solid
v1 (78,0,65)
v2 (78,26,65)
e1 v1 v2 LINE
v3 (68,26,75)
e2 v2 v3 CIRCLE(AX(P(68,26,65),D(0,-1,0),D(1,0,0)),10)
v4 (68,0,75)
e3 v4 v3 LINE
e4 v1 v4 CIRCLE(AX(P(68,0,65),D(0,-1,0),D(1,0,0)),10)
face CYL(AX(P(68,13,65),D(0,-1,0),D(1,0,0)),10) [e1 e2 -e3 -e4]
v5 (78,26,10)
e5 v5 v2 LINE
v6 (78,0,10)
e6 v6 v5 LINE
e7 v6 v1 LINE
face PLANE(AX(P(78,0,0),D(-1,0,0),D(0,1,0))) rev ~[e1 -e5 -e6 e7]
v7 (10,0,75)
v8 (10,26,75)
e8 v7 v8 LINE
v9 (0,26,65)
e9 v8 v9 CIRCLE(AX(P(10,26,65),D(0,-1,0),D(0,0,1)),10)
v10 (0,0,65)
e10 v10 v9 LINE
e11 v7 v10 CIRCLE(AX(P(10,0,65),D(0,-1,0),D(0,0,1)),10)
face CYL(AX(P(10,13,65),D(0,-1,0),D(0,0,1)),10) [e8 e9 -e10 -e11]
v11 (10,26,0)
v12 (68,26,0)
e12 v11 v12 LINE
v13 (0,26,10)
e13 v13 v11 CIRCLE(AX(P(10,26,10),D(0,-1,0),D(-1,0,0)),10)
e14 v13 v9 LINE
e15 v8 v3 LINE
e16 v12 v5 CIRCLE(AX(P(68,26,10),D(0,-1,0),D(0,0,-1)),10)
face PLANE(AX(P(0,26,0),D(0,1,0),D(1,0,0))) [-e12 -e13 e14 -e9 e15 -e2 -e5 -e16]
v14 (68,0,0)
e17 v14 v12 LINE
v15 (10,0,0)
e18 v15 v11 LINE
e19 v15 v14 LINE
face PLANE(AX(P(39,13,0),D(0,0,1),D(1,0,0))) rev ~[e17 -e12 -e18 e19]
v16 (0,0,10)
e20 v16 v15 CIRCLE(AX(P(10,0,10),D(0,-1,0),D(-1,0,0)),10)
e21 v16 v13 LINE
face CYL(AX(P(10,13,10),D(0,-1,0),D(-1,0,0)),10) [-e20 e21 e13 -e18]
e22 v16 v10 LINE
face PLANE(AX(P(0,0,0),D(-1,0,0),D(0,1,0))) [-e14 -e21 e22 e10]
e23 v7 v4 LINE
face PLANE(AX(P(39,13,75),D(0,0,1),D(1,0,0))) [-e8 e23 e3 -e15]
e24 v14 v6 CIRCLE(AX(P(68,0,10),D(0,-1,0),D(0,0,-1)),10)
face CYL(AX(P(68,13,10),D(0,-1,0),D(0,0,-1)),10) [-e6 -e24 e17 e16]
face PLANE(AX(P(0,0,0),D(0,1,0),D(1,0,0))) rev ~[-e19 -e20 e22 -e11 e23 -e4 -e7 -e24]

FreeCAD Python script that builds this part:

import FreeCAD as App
import Part
import Sketcher

doc = App.newDocument("Part")
params = doc.addObject("Spreadsheet::Sheet", "Params")
for row, (alias, value) in enumerate([
    ("sketch1_width", "10 mm"),
    ("sketch1_height", "26 mm"),
    ("revolution_angle", "90 deg"),
    ("sketch2_width", "10 mm"),
    ("sketch2_height", "26 mm"),
    ("pad1_length", "10 mm"),
    ("sketch3_width", "10 mm"),
    ("sketch3_height", "26 mm"),
    ("revolution2_angle", "90 deg"),
    ("sketch4_width", "10 mm"),
    ("sketch4_height", "26 mm"),
    ("pad2_length", "10 mm"),
    ("sketch5_width", "10 mm"),
    ("sketch5_height", "26 mm"),
    ("revolution3_angle", "90 deg"),
    ("sketch6_width", "10 mm"),
    ("sketch6_height", "26 mm"),
    ("pad3_length", "10 mm"),
    ("sketch7_width", "10 mm"),
    ("sketch7_height", "26 mm"),
    ("revolution4_angle", "90 deg"),
    ("sketch8_width", "10 mm"),
    ("sketch8_height", "26 mm"),
    ("pad4_length", "10 mm"),
    ("sketch9_width", "78 mm"),
    ("sketch9_height", "26 mm"),
    ("pad5_length", "75 mm"),
], start=1):
    params.set(f"A{row}", alias)
    params.set(f"B{row}", "=" + value)
    params.setAlias(f"B{row}", alias)

body = doc.addObject("PartDesign::Body", "Body")

# Sketch on XY plane
sketch1 = body.newObject("Sketcher::SketchObject", "Sketch")
sketch1.AttachmentSupport = (doc.getObject("XY_Plane"), [""])
sketch1.MapMode = "FlatFace"
sketch1.addGeometry([
    Part.LineSegment(App.Vector(0, 0, 0), App.Vector(0, 26, 0)),
    Part.LineSegment(App.Vector(0, 26, 0), App.Vector(10, 26, 0)),
    Part.LineSegment(App.Vector(10, 26, 0), App.Vector(10, 0, 0)),
    Part.LineSegment(App.Vector(10, 0, 0), App.Vector(0, 0, 0)),
], False)
sketch1.addConstraint([
    Sketcher.Constraint("Coincident", 0, 2, 1, 1),
    Sketcher.Constraint("Coincident", 1, 2, 2, 1),
    Sketcher.Constraint("Coincident", 2, 2, 3, 1),
    Sketcher.Constraint("Coincident", 3, 2, 0, 1),
    Sketcher.Constraint("Vertical", 0),
    Sketcher.Constraint("Horizontal", 1),
    Sketcher.Constraint("Vertical", 2),
    Sketcher.Constraint("Horizontal", 3),
    Sketcher.Constraint("Coincident", 3, 2, -1, 1),
    Sketcher.Constraint("DistanceX", 1, 1, 1, 2, 10.0),
    Sketcher.Constraint("DistanceY", 0, 1, 0, 2, 26.0),
])
sketch1.setExpression("Constraints[9]", "Params.sketch1_width")
sketch1.setExpression("Constraints[10]", "Params.sketch1_height")
revolution = body.newObject("PartDesign::Revolution", "Revolution")
revolution.Profile = sketch1
revolution.ReferenceAxis = (sketch1, ["V_Axis"])
revolution.setExpression("Angle", "Params.revolution_angle")
revolution.Reversed = True
body2 = doc.addObject("PartDesign::Body", "Body001")

# Sketch on XY plane
sketch2 = body2.newObject("Sketcher::SketchObject", "Sketch001")
sketch2.AttachmentSupport = (doc.getObject("XY_Plane001"), [""])
sketch2.MapMode = "FlatFace"
sketch2.addGeometry([
    Part.LineSegment(App.Vector(0, 26, 0), App.Vector(0, 0, 0)),
    Part.LineSegment(App.Vector(0, 0, 0), App.Vector(10, 0, 0)),
    Part.LineSegment(App.Vector(10, 0, 0), App.Vector(10, 26, 0)),
    Part.LineSegment(App.Vector(10, 26, 0), App.Vector(0, 26, 0)),
], False)
sketch2.addConstraint([
    Sketcher.Constraint("Coincident", 0, 2, 1, 1),
    Sketcher.Constraint("Coincident", 1, 2, 2, 1),
    Sketcher.Constraint("Coincident", 2, 2, 3, 1),
    Sketcher.Constraint("Coincident", 3, 2, 0, 1),
    Sketcher.Constraint("Vertical", 0),
    Sketcher.Constraint("Horizontal", 1),
    Sketcher.Constraint("Vertical", 2),
    Sketcher.Constraint("Horizontal", 3),
    Sketcher.Constraint("Coincident", 0, 2, -1, 1),
    Sketcher.Constraint("DistanceX", 1, 1, 1, 2, 10.0),
    Sketcher.Constraint("DistanceY", 0, 2, 0, 1, 26.0),
])
sketch2.setExpression("Constraints[9]", "Params.sketch2_width")
sketch2.setExpression("Constraints[10]", "Params.sketch2_height")
pad1 = body2.newObject("PartDesign::Pad", "Pad")
pad1.Profile = sketch2
pad1.setExpression("Length", "Params.pad1_length")
doc.recompute()

boolean = body2.newObject("PartDesign::Boolean", "Boolean")
boolean.Type = "Cut"
boolean.addObjects([body])
body3 = doc.addObject("PartDesign::Body", "Body002")
doc.recompute()

body2.Placement = App.Placement(App.Vector(68, 0, 10), App.Rotation(App.Vector(0, 1, 0), 90))
boolean2 = body3.newObject("PartDesign::Boolean", "Boolean001")
boolean2.Type = "Fuse"
boolean2.addObjects([body2])
body4 = doc.addObject("PartDesign::Body", "Body003")

# Sketch on XY plane
sketch3 = body4.newObject("Sketcher::SketchObject", "Sketch002")
sketch3.AttachmentSupport = (doc.getObject("XY_Plane003"), [""])
sketch3.MapMode = "FlatFace"
sketch3.addGeometry([
    Part.LineSegment(App.Vector(0, 0, 0), App.Vector(0, 26, 0)),
    Part.LineSegment(App.Vector(0, 26, 0), App.Vector(10, 26, 0)),
    Part.LineSegment(App.Vector(10, 26, 0), App.Vector(10, 0, 0)),
    Part.LineSegment(App.Vector(10, 0, 0), App.Vector(0, 0, 0)),
], False)
sketch3.addConstraint([
    Sketcher.Constraint("Coincident", 0, 2, 1, 1),
    Sketcher.Constraint("Coincident", 1, 2, 2, 1),
    Sketcher.Constraint("Coincident", 2, 2, 3, 1),
    Sketcher.Constraint("Coincident", 3, 2, 0, 1),
    Sketcher.Constraint("Vertical", 0),
    Sketcher.Constraint("Horizontal", 1),
    Sketcher.Constraint("Vertical", 2),
    Sketcher.Constraint("Horizontal", 3),
    Sketcher.Constraint("Coincident", 3, 2, -1, 1),
    Sketcher.Constraint("DistanceX", 1, 1, 1, 2, 10.0),
    Sketcher.Constraint("DistanceY", 0, 1, 0, 2, 26.0),
])
sketch3.setExpression("Constraints[9]", "Params.sketch3_width")
sketch3.setExpression("Constraints[10]", "Params.sketch3_height")
revolution2 = body4.newObject("PartDesign::Revolution", "Revolution001")
revolution2.Profile = sketch3
revolution2.ReferenceAxis = (sketch3, ["V_Axis"])
revolution2.setExpression("Angle", "Params.revolution2_angle")
revolution2.Reversed = True
body5 = doc.addObject("PartDesign::Body", "Body004")

# Sketch on XY plane
sketch4 = body5.newObject("Sketcher::SketchObject", "Sketch003")
sketch4.AttachmentSupport = (doc.getObject("XY_Plane004"), [""])
sketch4.MapMode = "FlatFace"
sketch4.addGeometry([
    Part.LineSegment(App.Vector(0, 26, 0), App.Vector(0, 0, 0)),
    Part.LineSegment(App.Vector(0, 0, 0), App.Vector(10, 0, 0)),
    Part.LineSegment(App.Vector(10, 0, 0), App.Vector(10, 26, 0)),
    Part.LineSegment(App.Vector(10, 26, 0), App.Vector(0, 26, 0)),
], False)
sketch4.addConstraint([
    Sketcher.Constraint("Coincident", 0, 2, 1, 1),
    Sketcher.Constraint("Coincident", 1, 2, 2, 1),
    Sketcher.Constraint("Coincident", 2, 2, 3, 1),
    Sketcher.Constraint("Coincident", 3, 2, 0, 1),
    Sketcher.Constraint("Vertical", 0),
    Sketcher.Constraint("Horizontal", 1),
    Sketcher.Constraint("Vertical", 2),
    Sketcher.Constraint("Horizontal", 3),
    Sketcher.Constraint("Coincident", 0, 2, -1, 1),
    Sketcher.Constraint("DistanceX", 1, 1, 1, 2, 10.0),
    Sketcher.Constraint("DistanceY", 0, 2, 0, 1, 26.0),
])
sketch4.setExpression("Constraints[9]", "Params.sketch4_width")
sketch4.setExpression("Constraints[10]", "Params.sketch4_height")
pad2 = body5.newObject("PartDesign::Pad", "Pad001")
pad2.Profile = sketch4
pad2.setExpression("Length", "Params.pad2_length")
doc.recompute()

boolean3 = body5.newObject("PartDesign::Boolean", "Boolean002")
boolean3.Type = "Cut"
boolean3.addObjects([body4])
body6 = doc.addObject("PartDesign::Body", "Body005")
doc.recompute()

body5.Placement = App.Placement(App.Vector(10, 0, 10), App.Rotation(App.Vector(0, 1, 0), 180))
boolean4 = body6.newObject("PartDesign::Boolean", "Boolean003")
boolean4.Type = "Fuse"
boolean4.addObjects([body5])
body7 = doc.addObject("PartDesign::Body", "Body006")

# Sketch on XY plane
sketch5 = body7.newObject("Sketcher::SketchObject", "Sketch004")
sketch5.AttachmentSupport = (doc.getObject("XY_Plane006"), [""])
sketch5.MapMode = "FlatFace"
sketch5.addGeometry([
    Part.LineSegment(App.Vector(0, 0, 0), App.Vector(0, 26, 0)),
    Part.LineSegment(App.Vector(0, 26, 0), App.Vector(10, 26, 0)),
    Part.LineSegment(App.Vector(10, 26, 0), App.Vector(10, 0, 0)),
    Part.LineSegment(App.Vector(10, 0, 0), App.Vector(0, 0, 0)),
], False)
sketch5.addConstraint([
    Sketcher.Constraint("Coincident", 0, 2, 1, 1),
    Sketcher.Constraint("Coincident", 1, 2, 2, 1),
    Sketcher.Constraint("Coincident", 2, 2, 3, 1),
    Sketcher.Constraint("Coincident", 3, 2, 0, 1),
    Sketcher.Constraint("Vertical", 0),
    Sketcher.Constraint("Horizontal", 1),
    Sketcher.Constraint("Vertical", 2),
    Sketcher.Constraint("Horizontal", 3),
    Sketcher.Constraint("Coincident", 3, 2, -1, 1),
    Sketcher.Constraint("DistanceX", 1, 1, 1, 2, 10.0),
    Sketcher.Constraint("DistanceY", 0, 1, 0, 2, 26.0),
])
sketch5.setExpression("Constraints[9]", "Params.sketch5_width")
sketch5.setExpression("Constraints[10]", "Params.sketch5_height")
revolution3 = body7.newObject("PartDesign::Revolution", "Revolution002")
revolution3.Profile = sketch5
revolution3.ReferenceAxis = (sketch5, ["V_Axis"])
revolution3.setExpression("Angle", "Params.revolution3_angle")
revolution3.Reversed = True
body8 = doc.addObject("PartDesign::Body", "Body007")

# Sketch on XY plane
sketch6 = body8.newObject("Sketcher::SketchObject", "Sketch005")
sketch6.AttachmentSupport = (doc.getObject("XY_Plane007"), [""])
sketch6.MapMode = "FlatFace"
sketch6.addGeometry([
    Part.LineSegment(App.Vector(0, 26, 0), App.Vector(0, 0, 0)),
    Part.LineSegment(App.Vector(0, 0, 0), App.Vector(10, 0, 0)),
    Part.LineSegment(App.Vector(10, 0, 0), App.Vector(10, 26, 0)),
    Part.LineSegment(App.Vector(10, 26, 0), App.Vector(0, 26, 0)),
], False)
sketch6.addConstraint([
    Sketcher.Constraint("Coincident", 0, 2, 1, 1),
    Sketcher.Constraint("Coincident", 1, 2, 2, 1),
    Sketcher.Constraint("Coincident", 2, 2, 3, 1),
    Sketcher.Constraint("Coincident", 3, 2, 0, 1),
    Sketcher.Constraint("Vertical", 0),
    Sketcher.Constraint("Horizontal", 1),
    Sketcher.Constraint("Vertical", 2),
    Sketcher.Constraint("Horizontal", 3),
    Sketcher.Constraint("Coincident", 0, 2, -1, 1),
    Sketcher.Constraint("DistanceX", 1, 1, 1, 2, 10.0),
    Sketcher.Constraint("DistanceY", 0, 2, 0, 1, 26.0),
])
sketch6.setExpression("Constraints[9]", "Params.sketch6_width")
sketch6.setExpression("Constraints[10]", "Params.sketch6_height")
pad3 = body8.newObject("PartDesign::Pad", "Pad002")
pad3.Profile = sketch6
pad3.setExpression("Length", "Params.pad3_length")
doc.recompute()

boolean5 = body8.newObject("PartDesign::Boolean", "Boolean004")
boolean5.Type = "Cut"
boolean5.addObjects([body7])
body9 = doc.addObject("PartDesign::Body", "Body008")
doc.recompute()

body8.Placement = App.Placement(App.Vector(10, 0, 65), App.Rotation(App.Vector(0, -1, 0), 90))
boolean6 = body9.newObject("PartDesign::Boolean", "Boolean005")
boolean6.Type = "Fuse"
boolean6.addObjects([body8])
body10 = doc.addObject("PartDesign::Body", "Body009")

# Sketch on XY plane
sketch7 = body10.newObject("Sketcher::SketchObject", "Sketch006")
sketch7.AttachmentSupport = (doc.getObject("XY_Plane009"), [""])
sketch7.MapMode = "FlatFace"
sketch7.addGeometry([
    Part.LineSegment(App.Vector(0, 0, 0), App.Vector(0, 26, 0)),
    Part.LineSegment(App.Vector(0, 26, 0), App.Vector(10, 26, 0)),
    Part.LineSegment(App.Vector(10, 26, 0), App.Vector(10, 0, 0)),
    Part.LineSegment(App.Vector(10, 0, 0), App.Vector(0, 0, 0)),
], False)
sketch7.addConstraint([
    Sketcher.Constraint("Coincident", 0, 2, 1, 1),
    Sketcher.Constraint("Coincident", 1, 2, 2, 1),
    Sketcher.Constraint("Coincident", 2, 2, 3, 1),
    Sketcher.Constraint("Coincident", 3, 2, 0, 1),
    Sketcher.Constraint("Vertical", 0),
    Sketcher.Constraint("Horizontal", 1),
    Sketcher.Constraint("Vertical", 2),
    Sketcher.Constraint("Horizontal", 3),
    Sketcher.Constraint("Coincident", 3, 2, -1, 1),
    Sketcher.Constraint("DistanceX", 1, 1, 1, 2, 10.0),
    Sketcher.Constraint("DistanceY", 0, 1, 0, 2, 26.0),
])
sketch7.setExpression("Constraints[9]", "Params.sketch7_width")
sketch7.setExpression("Constraints[10]", "Params.sketch7_height")
revolution4 = body10.newObject("PartDesign::Revolution", "Revolution003")
revolution4.Profile = sketch7
revolution4.ReferenceAxis = (sketch7, ["V_Axis"])
revolution4.setExpression("Angle", "Params.revolution4_angle")
revolution4.Reversed = True
body11 = doc.addObject("PartDesign::Body", "Body010")

# Sketch on XY plane
sketch8 = body11.newObject("Sketcher::SketchObject", "Sketch007")
sketch8.AttachmentSupport = (doc.getObject("XY_Plane010"), [""])
sketch8.MapMode = "FlatFace"
sketch8.addGeometry([
    Part.LineSegment(App.Vector(0, 26, 0), App.Vector(0, 0, 0)),
    Part.LineSegment(App.Vector(0, 0, 0), App.Vector(10, 0, 0)),
    Part.LineSegment(App.Vector(10, 0, 0), App.Vector(10, 26, 0)),
    Part.LineSegment(App.Vector(10, 26, 0), App.Vector(0, 26, 0)),
], False)
sketch8.addConstraint([
    Sketcher.Constraint("Coincident", 0, 2, 1, 1),
    Sketcher.Constraint("Coincident", 1, 2, 2, 1),
    Sketcher.Constraint("Coincident", 2, 2, 3, 1),
    Sketcher.Constraint("Coincident", 3, 2, 0, 1),
    Sketcher.Constraint("Vertical", 0),
    Sketcher.Constraint("Horizontal", 1),
    Sketcher.Constraint("Vertical", 2),
    Sketcher.Constraint("Horizontal", 3),
    Sketcher.Constraint("Coincident", 0, 2, -1, 1),
    Sketcher.Constraint("DistanceX", 1, 1, 1, 2, 10.0),
    Sketcher.Constraint("DistanceY", 0, 2, 0, 1, 26.0),
])
sketch8.setExpression("Constraints[9]", "Params.sketch8_width")
sketch8.setExpression("Constraints[10]", "Params.sketch8_height")
pad4 = body11.newObject("PartDesign::Pad", "Pad003")
pad4.Profile = sketch8
pad4.setExpression("Length", "Params.pad4_length")
doc.recompute()

boolean7 = body11.newObject("PartDesign::Boolean", "Boolean006")
boolean7.Type = "Cut"
boolean7.addObjects([body10])
body12 = doc.addObject("PartDesign::Body", "Body011")
body12.AllowCompound = True
doc.recompute()

body11.Placement = App.Placement(App.Vector(68, 0, 65), App.Rotation(App.Vector(0, 0, 1), 0))
boolean8 = body12.newObject("PartDesign::Boolean", "Boolean007")
boolean8.Type = "Fuse"
boolean8.addObjects([body11])
doc.recompute()

boolean9 = body12.newObject("PartDesign::Boolean", "Boolean008")
boolean9.Type = "Fuse"
boolean9.addObjects([body3])
doc.recompute()

boolean10 = body12.newObject("PartDesign::Boolean", "Boolean009")
boolean10.Type = "Fuse"
boolean10.addObjects([body6])
doc.recompute()

boolean11 = body12.newObject("PartDesign::Boolean", "Boolean010")
boolean11.Type = "Fuse"
boolean11.addObjects([body9])
body13 = doc.addObject("PartDesign::Body", "Body012")

# Sketch on XY plane
sketch9 = body13.newObject("Sketcher::SketchObject", "Sketch008")
sketch9.AttachmentSupport = (doc.getObject("XY_Plane012"), [""])
sketch9.MapMode = "FlatFace"
sketch9.addGeometry([
    Part.LineSegment(App.Vector(0, 26, 0), App.Vector(0, 0, 0)),
    Part.LineSegment(App.Vector(0, 0, 0), App.Vector(78, 0, 0)),
    Part.LineSegment(App.Vector(78, 0, 0), App.Vector(78, 26, 0)),
    Part.LineSegment(App.Vector(78, 26, 0), App.Vector(0, 26, 0)),
], False)
sketch9.addConstraint([
    Sketcher.Constraint("Coincident", 0, 2, 1, 1),
    Sketcher.Constraint("Coincident", 1, 2, 2, 1),
    Sketcher.Constraint("Coincident", 2, 2, 3, 1),
    Sketcher.Constraint("Coincident", 3, 2, 0, 1),
    Sketcher.Constraint("Vertical", 0),
    Sketcher.Constraint("Horizontal", 1),
    Sketcher.Constraint("Vertical", 2),
    Sketcher.Constraint("Horizontal", 3),
    Sketcher.Constraint("Coincident", 0, 2, -1, 1),
    Sketcher.Constraint("DistanceX", 1, 1, 1, 2, 78.0),
    Sketcher.Constraint("DistanceY", 0, 2, 0, 1, 26.0),
])
sketch9.setExpression("Constraints[9]", "Params.sketch9_width")
sketch9.setExpression("Constraints[10]", "Params.sketch9_height")
pad5 = body13.newObject("PartDesign::Pad", "Pad004")
pad5.Profile = sketch9
pad5.setExpression("Length", "Params.pad5_length")
doc.recompute()

boolean12 = body13.newObject("PartDesign::Boolean", "Boolean011")
boolean12.Type = "Cut"
boolean12.addObjects([body12])

doc.recompute()
